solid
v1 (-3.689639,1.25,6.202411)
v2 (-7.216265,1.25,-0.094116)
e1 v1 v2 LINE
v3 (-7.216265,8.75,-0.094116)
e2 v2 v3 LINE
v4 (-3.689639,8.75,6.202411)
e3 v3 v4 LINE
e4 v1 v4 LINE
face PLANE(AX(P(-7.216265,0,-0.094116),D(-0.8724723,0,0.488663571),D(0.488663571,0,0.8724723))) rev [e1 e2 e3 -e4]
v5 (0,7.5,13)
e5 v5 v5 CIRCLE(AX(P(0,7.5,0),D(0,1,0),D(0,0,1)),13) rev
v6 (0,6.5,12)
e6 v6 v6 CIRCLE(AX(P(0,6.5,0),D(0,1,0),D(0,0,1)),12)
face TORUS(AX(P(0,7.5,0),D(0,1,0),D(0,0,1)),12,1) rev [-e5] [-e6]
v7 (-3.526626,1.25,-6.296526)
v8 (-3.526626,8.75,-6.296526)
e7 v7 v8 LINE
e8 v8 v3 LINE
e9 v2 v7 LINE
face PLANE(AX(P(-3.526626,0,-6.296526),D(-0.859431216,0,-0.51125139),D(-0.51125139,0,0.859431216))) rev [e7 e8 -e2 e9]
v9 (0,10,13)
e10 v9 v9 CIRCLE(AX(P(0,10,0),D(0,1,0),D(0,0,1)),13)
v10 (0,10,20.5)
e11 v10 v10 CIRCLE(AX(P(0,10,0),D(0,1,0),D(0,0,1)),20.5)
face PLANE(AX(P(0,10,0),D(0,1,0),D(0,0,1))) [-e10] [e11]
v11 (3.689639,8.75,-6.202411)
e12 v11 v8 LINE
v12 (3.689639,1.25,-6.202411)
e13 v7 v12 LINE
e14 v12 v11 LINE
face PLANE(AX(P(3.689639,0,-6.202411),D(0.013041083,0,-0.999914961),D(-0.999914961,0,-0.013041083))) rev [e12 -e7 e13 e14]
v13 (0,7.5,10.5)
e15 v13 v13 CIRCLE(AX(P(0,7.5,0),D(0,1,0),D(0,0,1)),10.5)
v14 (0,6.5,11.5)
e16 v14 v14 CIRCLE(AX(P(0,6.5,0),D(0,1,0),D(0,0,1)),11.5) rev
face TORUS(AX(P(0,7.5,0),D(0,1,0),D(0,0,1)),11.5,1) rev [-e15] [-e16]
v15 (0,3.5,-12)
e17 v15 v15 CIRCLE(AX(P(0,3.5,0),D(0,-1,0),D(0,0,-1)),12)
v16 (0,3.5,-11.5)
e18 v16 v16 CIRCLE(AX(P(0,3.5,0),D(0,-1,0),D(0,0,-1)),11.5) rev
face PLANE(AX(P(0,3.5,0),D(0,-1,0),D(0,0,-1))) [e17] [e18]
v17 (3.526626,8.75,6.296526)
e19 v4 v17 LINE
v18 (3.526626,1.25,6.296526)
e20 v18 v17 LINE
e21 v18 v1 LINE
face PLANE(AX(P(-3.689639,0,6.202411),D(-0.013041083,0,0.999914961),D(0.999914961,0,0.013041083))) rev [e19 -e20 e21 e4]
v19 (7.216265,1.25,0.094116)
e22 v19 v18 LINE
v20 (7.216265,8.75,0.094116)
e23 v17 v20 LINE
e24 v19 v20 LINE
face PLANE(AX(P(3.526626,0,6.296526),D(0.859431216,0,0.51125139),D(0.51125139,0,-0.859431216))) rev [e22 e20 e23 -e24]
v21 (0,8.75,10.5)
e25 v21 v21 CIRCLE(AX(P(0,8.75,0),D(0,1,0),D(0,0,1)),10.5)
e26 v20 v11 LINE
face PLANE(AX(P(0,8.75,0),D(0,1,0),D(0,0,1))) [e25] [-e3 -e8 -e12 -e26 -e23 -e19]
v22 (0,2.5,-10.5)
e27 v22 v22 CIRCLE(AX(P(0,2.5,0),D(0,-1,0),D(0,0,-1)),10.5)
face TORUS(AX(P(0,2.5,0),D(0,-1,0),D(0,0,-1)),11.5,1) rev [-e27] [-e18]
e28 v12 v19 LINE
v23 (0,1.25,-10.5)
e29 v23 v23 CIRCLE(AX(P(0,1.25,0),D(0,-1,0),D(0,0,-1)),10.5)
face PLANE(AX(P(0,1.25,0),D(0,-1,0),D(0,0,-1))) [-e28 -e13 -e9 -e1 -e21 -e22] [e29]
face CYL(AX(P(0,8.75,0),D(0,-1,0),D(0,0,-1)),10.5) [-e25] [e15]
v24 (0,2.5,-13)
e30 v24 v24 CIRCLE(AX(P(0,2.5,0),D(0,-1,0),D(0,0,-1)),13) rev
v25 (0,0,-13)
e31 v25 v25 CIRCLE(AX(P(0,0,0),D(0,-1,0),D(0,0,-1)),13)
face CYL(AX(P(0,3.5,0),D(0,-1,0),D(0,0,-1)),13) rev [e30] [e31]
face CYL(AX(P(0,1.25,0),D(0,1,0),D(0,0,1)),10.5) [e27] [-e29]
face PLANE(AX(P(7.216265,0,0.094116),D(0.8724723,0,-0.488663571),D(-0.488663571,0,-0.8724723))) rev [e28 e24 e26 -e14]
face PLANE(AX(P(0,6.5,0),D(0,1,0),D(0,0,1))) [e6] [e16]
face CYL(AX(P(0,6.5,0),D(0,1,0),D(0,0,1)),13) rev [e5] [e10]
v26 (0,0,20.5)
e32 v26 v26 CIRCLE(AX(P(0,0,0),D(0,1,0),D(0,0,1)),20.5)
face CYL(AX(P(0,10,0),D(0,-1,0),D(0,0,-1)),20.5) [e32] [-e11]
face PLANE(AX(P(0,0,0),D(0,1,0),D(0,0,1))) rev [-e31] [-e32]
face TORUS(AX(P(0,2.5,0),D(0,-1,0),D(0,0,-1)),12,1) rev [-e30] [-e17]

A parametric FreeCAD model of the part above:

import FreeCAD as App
import Part
import Sketcher


def edges_at(feature, points):
    """Names of the edges that pass closest to the given points."""
    edges = feature.Shape.Edges
    near = lambda p: min(range(len(edges)), key=lambda i: edges[i].distToShape(Part.Vertex(*p))[0])
    return sorted({f"Edge{near(p) + 1}" for p in points})


def add_polygon(sketch, points):
    """Adds a closed chain of lines whose ends are joined by coincident constraints."""
    first, n = sketch.GeometryCount, len(points)
    for a, b in zip(points, points[1:] + points[:1]):
        sketch.addGeometry(Part.LineSegment(App.Vector(*a, 0), App.Vector(*b, 0)), False)
    for i in range(n):
        sketch.addConstraint(Sketcher.Constraint("Coincident", first + i, 2, first + (i + 1) % n, 1))

doc = App.newDocument("Part")
body = doc.addObject("PartDesign::Body", "Body")

sketch1 = body.newObject("Sketcher::SketchObject", "Sketch")
sketch1.AttachmentSupport = (doc.getObject("XZ_Plane"), [""])
sketch1.MapMode = "FlatFace"
sketch1.addGeometry(Part.Circle(App.Vector(0, 0, 0), App.Vector(0, 0, 1), 20.5), False)
sketch1.addConstraint([
    Sketcher.Constraint("Coincident", 0, 3, -1, 1),
    Sketcher.Constraint("Diameter", 0, 41.0),
])
pad1 = body.newObject("PartDesign::Pad", "Pad")
pad1.Profile = sketch1
pad1.Length = 10
pad1.Reversed = True

sketch2 = body.newObject("Sketcher::SketchObject", "Sketch001")
sketch2.AttachmentSupport = (doc.getObject("XZ_Plane"), [""])
sketch2.MapMode = "FlatFace"
sketch2.AttachmentOffset = App.Placement(App.Vector(0, 0, -10), App.Rotation())
sketch2.addGeometry(Part.Circle(App.Vector(0, 0, 0), App.Vector(0, 0, 1), 13), False)
sketch2.addConstraint([
    Sketcher.Constraint("Coincident", 0, 3, -1, 1),
    Sketcher.Constraint("Diameter", 0, 26.0),
])
pocket1 = body.newObject("PartDesign::Pocket", "Pocket")
pocket1.Profile = sketch2
pocket1.Length = 3.5
pocket1.Reversed = True

sketch3 = body.newObject("Sketcher::SketchObject", "Sketch002")
sketch3.AttachmentSupport = (doc.getObject("XZ_Plane"), [""])
sketch3.MapMode = "FlatFace"
sketch3.AttachmentOffset = App.Placement(App.Vector(0, 0, -3.5), App.Rotation())
sketch3.addGeometry(Part.Circle(App.Vector(0, 0, 0), App.Vector(0, 0, 1), 13), False)
sketch3.addConstraint([
    Sketcher.Constraint("Coincident", 0, 3, -1, 1),
    Sketcher.Constraint("Diameter", 0, 26.0),
])
pocket2 = body.newObject("PartDesign::Pocket", "Pocket001")
pocket2.Profile = sketch3
pocket2.Length = 3.5
pocket2.Reversed = True

sketch4 = body.newObject("Sketcher::SketchObject", "Sketch003")
sketch4.AttachmentSupport = (doc.getObject("XZ_Plane"), [""])
sketch4.MapMode = "FlatFace"
sketch4.AttachmentOffset = App.Placement(App.Vector(0, 0, -6.5), App.Rotation())
sketch4.addGeometry(Part.Circle(App.Vector(0, 0, 0), App.Vector(0, 0, 1), 10.5), False)
sketch4.addConstraint([
    Sketcher.Constraint("Coincident", 0, 3, -1, 1),
    Sketcher.Constraint("Diameter", 0, 21.0),
])
pad2 = body.newObject("PartDesign::Pad", "Pad001")
pad2.Profile = sketch4
pad2.Length = 2.25
pad2.Reversed = True

sketch5 = body.newObject("Sketcher::SketchObject", "Sketch004")
sketch5.AttachmentSupport = (doc.getObject("XZ_Plane"), [""])
sketch5.MapMode = "FlatFace"
sketch5.AttachmentOffset = App.Placement(App.Vector(0, 0, -1.25), App.Rotation())
sketch5.addGeometry(Part.Circle(App.Vector(0, 0, 0), App.Vector(0, 0, 1), 10.5), False)
sketch5.addConstraint([
    Sketcher.Constraint("Coincident", 0, 3, -1, 1),
    Sketcher.Constraint("Diameter", 0, 21.0),
])
pad3 = body.newObject("PartDesign::Pad", "Pad002")
pad3.Profile = sketch5
pad3.Length = 2.25
pad3.Reversed = True

sketch6 = body.newObject("Sketcher::SketchObject", "Sketch005")
sketch6.AttachmentSupport = (doc.getObject("XZ_Plane"), [""])
sketch6.MapMode = "FlatFace"
sketch6.AttachmentOffset = App.Placement(App.Vector(0, 0, -6.5), App.Rotation())
add_polygon(sketch6, [(3.689639, -6.202411), (-3.526626, -6.296526), (-7.216265, -0.094116), (-3.689639, 6.202411), (3.526626, 6.296526), (7.216265, 0.094116)])
sketch6.addConstraint([
    Sketcher.Constraint("Symmetric", 0, 2, 3, 2, -1, 1),
    Sketcher.Constraint("Symmetric", 1, 2, 4, 2, -1, 1),
    Sketcher.Constraint("Symmetric", 2, 2, 5, 2, -1, 1),
    Sketcher.Constraint("Equal", 0, 1),
    Sketcher.Constraint("Equal", 1, 2),
    Sketcher.Constraint("Distance", 0, 7.216878),
    Sketcher.Constraint("DistanceX", 2, 2, -1, 1, 3.689639),
    Sketcher.Constraint("DistanceY", -1, 1, 2, 2, 6.202411),
    Sketcher.Constraint("DistanceX", 1, 2, 0, 2, 3.689639),
])
pocket3 = body.newObject("PartDesign::Pocket", "Pocket002")
pocket3.Profile = sketch6
pocket3.Type = "ThroughAll"
pocket3.Midplane = True
doc.recompute()

fillet = body.newObject("PartDesign::Fillet", "Fillet")
fillet.Base = (pocket3, edges_at(pocket3, [(0, 3.5, -13), (0, 6.5, -13)]))
fillet.Radius = 1
doc.recompute()

fillet2 = body.newObject("PartDesign::Fillet", "Fillet001")
fillet2.Base = (fillet, edges_at(fillet, [(0, 6.5, -10.5), (0, 3.5, -10.5)]))
fillet2.Radius = 1

doc.recompute()
